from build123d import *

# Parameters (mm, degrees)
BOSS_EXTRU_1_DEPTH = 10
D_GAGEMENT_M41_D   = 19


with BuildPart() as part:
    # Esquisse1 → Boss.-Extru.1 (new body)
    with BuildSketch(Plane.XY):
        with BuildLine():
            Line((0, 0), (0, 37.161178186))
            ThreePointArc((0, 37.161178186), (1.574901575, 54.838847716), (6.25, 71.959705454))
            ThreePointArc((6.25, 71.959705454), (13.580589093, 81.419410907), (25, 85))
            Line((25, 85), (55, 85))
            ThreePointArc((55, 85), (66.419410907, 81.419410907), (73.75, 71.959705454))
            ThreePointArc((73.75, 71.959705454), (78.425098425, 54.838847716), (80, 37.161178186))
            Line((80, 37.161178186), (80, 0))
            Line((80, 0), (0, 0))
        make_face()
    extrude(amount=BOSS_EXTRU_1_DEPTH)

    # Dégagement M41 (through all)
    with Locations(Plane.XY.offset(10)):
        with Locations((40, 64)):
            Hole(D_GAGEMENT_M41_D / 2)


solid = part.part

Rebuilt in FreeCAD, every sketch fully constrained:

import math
import FreeCAD as App
import Part
import Sketcher
from FreeCAD import Vector
Q = App.Units.Quantity

doc = App.newDocument("Part")
body = doc.addObject("PartDesign::Body", "Body")

# Sketch on XY plane
sketch1 = doc.addObject("Sketcher::SketchObject", "Sketch")
body.addObject(sketch1)
sketch1.AttachmentSupport = (doc.XY_Plane, [""])
sketch1.MapMode = "FlatFace"
sketch1.addGeometry(Part.LineSegment(Vector(0, 37, 0), Vector(0, 0, 0)), False)
sketch1.addGeometry(Part.LineSegment(Vector(0, 0, 0), Vector(80, 0, 0)), False)
sketch1.addGeometry(Part.LineSegment(Vector(80, 0, 0), Vector(80, 37, 0)), False)
sketch1.addGeometry(Part.ArcOfCircle(Part.Circle(Vector(-20, 37, 0), Vector(0, 0, 1), 100), math.radians(0), math.radians(20)), False)
sketch1.addGeometry(Part.ArcOfCircle(Part.Circle(Vector(55, 65, 0), Vector(0, 0, 1), 20), math.radians(20), math.radians(90)), False)
sketch1.addGeometry(Part.LineSegment(Vector(55, 85, 0), Vector(25, 85, 0)), False)
sketch1.addGeometry(Part.ArcOfCircle(Part.Circle(Vector(25, 65, 0), Vector(0, 0, 1), 20), math.radians(90), math.radians(160)), False)
sketch1.addGeometry(Part.ArcOfCircle(Part.Circle(Vector(100, 37, 0), Vector(0, 0, 1), 100), math.radians(160), math.radians(180)), False)
sketch1.addConstraint(Sketcher.Constraint("Coincident", 0, 2, 1, 1))
sketch1.addConstraint(Sketcher.Constraint("Coincident", 1, 2, 2, 1))
sketch1.addConstraint(Sketcher.Constraint("Tangent", 2, 2, 3, 1))
sketch1.addConstraint(Sketcher.Constraint("Tangent", 3, 2, 4, 1))
sketch1.addConstraint(Sketcher.Constraint("Tangent", 4, 2, 5, 1))
sketch1.addConstraint(Sketcher.Constraint("Tangent", 5, 2, 6, 1))
sketch1.addConstraint(Sketcher.Constraint("Tangent", 6, 2, 7, 1))
sketch1.addConstraint(Sketcher.Constraint("Tangent", 7, 2, 0, 1))
sketch1.addConstraint(Sketcher.Constraint("Vertical", 0))
sketch1.addConstraint(Sketcher.Constraint("Horizontal", 1))
sketch1.addConstraint(Sketcher.Constraint("Vertical", 2))
sketch1.addConstraint(Sketcher.Constraint("Horizontal", 5))
sketch1.addConstraint(Sketcher.Constraint("Coincident", 0, 2, -1, 1))
sketch1.addConstraint(Sketcher.Constraint("Equal", 4, 6))
sketch1.addConstraint(Sketcher.Constraint("Equal", 3, 7))
sketch1.addConstraint(Sketcher.Constraint("Horizontal", 3, 3, 7, 3))
sketch1.addConstraint(Sketcher.Constraint("Radius", 3, Q("100 mm")))
sketch1.addConstraint(Sketcher.Constraint("Radius", 4, Q("20 mm")))
sketch1.addConstraint(Sketcher.Constraint("DistanceX", 1, 1, 1, 2, Q("80 mm")))
sketch1.addConstraint(Sketcher.Constraint("DistanceX", 5, 2, 5, 1, Q("30 mm")))
sketch1.addConstraint(Sketcher.Constraint("DistanceY", -1, 1, 4, 3, Q("65 mm")))
pad1 = doc.addObject("PartDesign::Pad", "Pad")
body.addObject(pad1)
pad1.Profile = sketch1
pad1.Length = 10

# Sketch on XY plane
sketch2 = doc.addObject("Sketcher::SketchObject", "Sketch001")
body.addObject(sketch2)
sketch2.AttachmentSupport = (doc.XY_Plane, [""])
sketch2.MapMode = "FlatFace"
sketch2.AttachmentOffset = App.Placement(Vector(0, 0, 10), App.Rotation())
sketch2.addGeometry(Part.Circle(Vector(40, 64, 0), Vector(0, 0, 1), 10), False)
sketch2.addConstraint(Sketcher.Constraint("Diameter", 0, Q("19 mm")))
sketch2.addConstraint(Sketcher.Constraint("DistanceX", -1, 1, 0, 3, Q("40 mm")))
sketch2.addConstraint(Sketcher.Constraint("DistanceY", -1, 1, 0, 3, Q("64 mm")))
doc.recompute()
hole = doc.addObject("PartDesign::Hole", "Hole")
body.addObject(hole)
hole.Profile = sketch2
hole.ThreadType = "None"
hole.Diameter = 19
hole.DepthType = "ThroughAll"

doc.recompute()
